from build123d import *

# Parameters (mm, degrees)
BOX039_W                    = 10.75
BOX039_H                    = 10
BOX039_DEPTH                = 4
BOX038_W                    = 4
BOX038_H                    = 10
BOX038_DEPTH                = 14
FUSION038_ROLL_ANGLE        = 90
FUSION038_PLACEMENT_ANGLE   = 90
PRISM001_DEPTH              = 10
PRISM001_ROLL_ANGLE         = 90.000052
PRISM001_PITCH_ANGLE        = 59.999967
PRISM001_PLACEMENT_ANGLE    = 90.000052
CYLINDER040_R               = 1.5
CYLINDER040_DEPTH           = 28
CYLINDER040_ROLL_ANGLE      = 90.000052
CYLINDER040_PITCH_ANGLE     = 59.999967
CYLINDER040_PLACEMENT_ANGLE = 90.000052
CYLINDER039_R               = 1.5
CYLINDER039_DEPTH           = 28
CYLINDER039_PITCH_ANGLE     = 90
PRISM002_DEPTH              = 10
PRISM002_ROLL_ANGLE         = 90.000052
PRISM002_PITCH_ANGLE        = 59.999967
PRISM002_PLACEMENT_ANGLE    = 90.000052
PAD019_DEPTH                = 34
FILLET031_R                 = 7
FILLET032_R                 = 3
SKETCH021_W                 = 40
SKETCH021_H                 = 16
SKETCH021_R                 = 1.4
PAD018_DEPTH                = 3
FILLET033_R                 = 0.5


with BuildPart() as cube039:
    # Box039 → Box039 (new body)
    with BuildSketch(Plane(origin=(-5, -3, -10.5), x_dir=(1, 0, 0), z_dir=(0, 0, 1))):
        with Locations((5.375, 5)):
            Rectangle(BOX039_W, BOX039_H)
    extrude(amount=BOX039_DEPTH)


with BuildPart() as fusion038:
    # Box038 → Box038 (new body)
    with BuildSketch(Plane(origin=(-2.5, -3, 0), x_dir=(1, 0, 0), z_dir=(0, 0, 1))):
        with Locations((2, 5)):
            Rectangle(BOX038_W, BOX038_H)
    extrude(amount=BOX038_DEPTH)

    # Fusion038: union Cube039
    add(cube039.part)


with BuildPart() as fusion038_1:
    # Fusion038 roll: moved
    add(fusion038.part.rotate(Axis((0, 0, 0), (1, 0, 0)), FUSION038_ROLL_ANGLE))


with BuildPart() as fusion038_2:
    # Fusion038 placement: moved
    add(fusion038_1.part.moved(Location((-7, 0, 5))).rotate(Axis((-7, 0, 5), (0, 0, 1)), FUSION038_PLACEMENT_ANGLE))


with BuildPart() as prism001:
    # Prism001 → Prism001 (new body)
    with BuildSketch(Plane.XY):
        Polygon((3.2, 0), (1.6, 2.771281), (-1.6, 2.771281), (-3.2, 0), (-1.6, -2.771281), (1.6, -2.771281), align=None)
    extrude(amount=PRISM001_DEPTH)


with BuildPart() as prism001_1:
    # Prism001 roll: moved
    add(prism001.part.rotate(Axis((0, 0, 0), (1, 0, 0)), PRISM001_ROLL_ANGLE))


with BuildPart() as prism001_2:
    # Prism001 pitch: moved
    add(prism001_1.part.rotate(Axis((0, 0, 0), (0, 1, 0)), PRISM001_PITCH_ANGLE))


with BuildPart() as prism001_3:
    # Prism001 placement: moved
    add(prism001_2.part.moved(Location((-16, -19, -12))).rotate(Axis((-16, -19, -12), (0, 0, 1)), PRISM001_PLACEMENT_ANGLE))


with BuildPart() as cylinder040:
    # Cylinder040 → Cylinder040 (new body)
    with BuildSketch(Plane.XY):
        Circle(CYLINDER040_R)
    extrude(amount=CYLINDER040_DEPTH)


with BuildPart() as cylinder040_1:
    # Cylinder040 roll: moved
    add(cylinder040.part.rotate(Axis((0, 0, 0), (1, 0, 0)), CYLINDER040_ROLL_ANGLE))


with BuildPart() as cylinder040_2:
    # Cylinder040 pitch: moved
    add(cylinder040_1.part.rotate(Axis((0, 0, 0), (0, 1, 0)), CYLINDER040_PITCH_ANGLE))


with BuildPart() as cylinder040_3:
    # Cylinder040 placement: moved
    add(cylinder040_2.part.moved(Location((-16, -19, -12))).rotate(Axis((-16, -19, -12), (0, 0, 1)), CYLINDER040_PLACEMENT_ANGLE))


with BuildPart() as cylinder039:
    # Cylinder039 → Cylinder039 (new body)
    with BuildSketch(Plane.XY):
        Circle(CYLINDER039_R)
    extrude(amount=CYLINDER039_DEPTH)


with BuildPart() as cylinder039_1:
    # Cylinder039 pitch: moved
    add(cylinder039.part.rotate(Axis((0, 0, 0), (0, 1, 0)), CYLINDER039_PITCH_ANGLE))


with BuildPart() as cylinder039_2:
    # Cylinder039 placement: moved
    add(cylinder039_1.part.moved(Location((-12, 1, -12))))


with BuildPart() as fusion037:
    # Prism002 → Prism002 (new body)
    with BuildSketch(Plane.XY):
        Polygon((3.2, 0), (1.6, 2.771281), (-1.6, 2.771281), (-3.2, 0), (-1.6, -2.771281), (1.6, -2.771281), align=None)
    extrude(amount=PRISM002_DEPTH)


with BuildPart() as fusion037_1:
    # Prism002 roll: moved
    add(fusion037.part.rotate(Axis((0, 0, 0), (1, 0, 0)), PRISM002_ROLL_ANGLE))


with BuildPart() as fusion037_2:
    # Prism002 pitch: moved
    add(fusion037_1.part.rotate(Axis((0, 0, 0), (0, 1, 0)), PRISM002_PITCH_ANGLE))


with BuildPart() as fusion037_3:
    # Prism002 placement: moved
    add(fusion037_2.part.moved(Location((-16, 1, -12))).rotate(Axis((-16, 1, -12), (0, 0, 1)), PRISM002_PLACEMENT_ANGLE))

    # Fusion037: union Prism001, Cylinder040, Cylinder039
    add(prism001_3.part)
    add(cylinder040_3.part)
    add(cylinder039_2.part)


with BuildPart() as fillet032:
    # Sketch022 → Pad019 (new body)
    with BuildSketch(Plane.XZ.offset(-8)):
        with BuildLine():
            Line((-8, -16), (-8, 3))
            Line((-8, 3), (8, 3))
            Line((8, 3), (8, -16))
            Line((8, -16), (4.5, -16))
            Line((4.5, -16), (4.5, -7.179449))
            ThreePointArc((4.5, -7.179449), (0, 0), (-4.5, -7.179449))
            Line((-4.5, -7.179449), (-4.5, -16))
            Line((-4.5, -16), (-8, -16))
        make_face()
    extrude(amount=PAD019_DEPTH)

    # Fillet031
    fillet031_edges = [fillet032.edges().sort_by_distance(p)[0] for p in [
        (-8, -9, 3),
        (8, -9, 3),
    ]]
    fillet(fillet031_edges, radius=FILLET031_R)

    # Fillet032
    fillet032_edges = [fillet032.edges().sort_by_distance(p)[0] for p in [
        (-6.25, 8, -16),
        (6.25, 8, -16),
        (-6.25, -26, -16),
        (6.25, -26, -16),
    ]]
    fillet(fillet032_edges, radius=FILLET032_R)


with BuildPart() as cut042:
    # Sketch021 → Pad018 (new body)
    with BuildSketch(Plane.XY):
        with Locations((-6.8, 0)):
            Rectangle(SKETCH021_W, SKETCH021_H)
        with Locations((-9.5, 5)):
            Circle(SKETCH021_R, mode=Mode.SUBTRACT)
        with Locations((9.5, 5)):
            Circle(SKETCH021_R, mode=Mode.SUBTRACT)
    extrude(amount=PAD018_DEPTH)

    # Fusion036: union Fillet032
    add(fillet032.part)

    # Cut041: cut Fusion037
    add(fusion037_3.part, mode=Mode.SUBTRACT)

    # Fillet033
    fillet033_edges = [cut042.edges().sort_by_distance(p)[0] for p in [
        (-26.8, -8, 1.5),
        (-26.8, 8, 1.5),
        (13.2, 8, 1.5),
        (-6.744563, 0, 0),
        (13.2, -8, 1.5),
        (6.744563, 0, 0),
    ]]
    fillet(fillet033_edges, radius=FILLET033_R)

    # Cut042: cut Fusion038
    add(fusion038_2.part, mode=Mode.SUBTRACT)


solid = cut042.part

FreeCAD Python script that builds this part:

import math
import FreeCAD as App
import Part
import Sketcher

V = App.Vector
Q = App.Units.Quantity


def edges_at(feature, points):
    """Names of the edges that pass closest to the given points."""
    edges = feature.Shape.Edges
    near = lambda p: min(range(len(edges)), key=lambda i: edges[i].distToShape(Part.Vertex(*p))[0])
    return sorted({f"Edge{near(p) + 1}" for p in points})

doc = App.newDocument("Part")
params = doc.addObject("Spreadsheet::Sheet", "Params")
for row, (alias, value) in enumerate([
    ("sketch1_height", "10 mm"),
    ("sketch1_width", "10.75 mm"),
    ("pad1_length", "4 mm"),
    ("sketch2_width", "4 mm"),
    ("sketch2_height", "10 mm"),
    ("pad2_length", "14 mm"),
    ("sketch3_width", "3.2 mm"),
    ("sketch3_length", "3.2 mm"),
    ("pad3_length", "10 mm"),
    ("sketch4_diameter", "3 mm"),
    ("pad4_length", "28 mm"),
    ("sketch5_diameter", "3 mm"),
    ("pad5_length", "28 mm"),
    ("sketch6_width", "3.2 mm"),
    ("sketch6_length", "3.2 mm"),
    ("pad6_length", "10 mm"),
    ("sketch7_radius", "5 mm"),
    ("sketch7_width", "16 mm"),
    ("sketch7_height", "19 mm"),
    ("sketch7_width2", "3.5 mm"),
    ("pad7_length", "34 mm"),
    ("fillet_radius", "7 mm"),
    ("fillet2_radius", "3 mm"),
    ("sketch8_diameter", "2.8 mm"),
    ("sketch8_width", "40 mm"),
    ("sketch8_height", "16 mm"),
    ("pad8_length", "3 mm"),
    ("fillet3_radius", "0.5 mm"),
], start=1):
    params.set(f"A{row}", alias)
    params.set(f"B{row}", "=" + value)
    params.setAlias(f"B{row}", alias)

body = doc.addObject("PartDesign::Body", "Body")

# Sketch on XY plane
sketch1 = body.newObject("Sketcher::SketchObject", "Sketch")
sketch1.AttachmentSupport = (doc.getObject("XY_Plane"), [""])
sketch1.MapMode = "FlatFace"
sketch1.AttachmentOffset = App.Placement(V(0, 0, -10.5), App.Rotation())
sketch1.addGeometry([
    Part.LineSegment(V(-5, 7, 0), V(-5, -3, 0)),
    Part.LineSegment(V(-5, -3, 0), V(5.75, -3, 0)),
    Part.LineSegment(V(5.75, -3, 0), V(5.75, 7, 0)),
    Part.LineSegment(V(5.75, 7, 0), V(-5, 7, 0)),
], False)
sketch1.addConstraint([
    Sketcher.Constraint("Coincident", 0, 2, 1, 1),
    Sketcher.Constraint("Coincident", 1, 2, 2, 1),
    Sketcher.Constraint("Coincident", 2, 2, 3, 1),
    Sketcher.Constraint("Coincident", 3, 2, 0, 1),
    Sketcher.Constraint("Vertical", 0),
    Sketcher.Constraint("Horizontal", 1),
    Sketcher.Constraint("Vertical", 2),
    Sketcher.Constraint("Horizontal", 3),
    Sketcher.Constraint("DistanceY", 0, 2, 0, 1, Q("10 mm")),
    Sketcher.Constraint("DistanceX", 0, 2, -1, 1, Q("5 mm")),
    Sketcher.Constraint("DistanceY", 0, 2, -1, 1, Q("3 mm")),
    Sketcher.Constraint("DistanceX", 1, 1, 1, 2, Q("10.75 mm")),
])
sketch1.setExpression("Constraints[8]", "Params.sketch1_height")
sketch1.setExpression("Constraints[11]", "Params.sketch1_width")
pad1 = body.newObject("PartDesign::Pad", "Pad")
pad1.Profile = sketch1
pad1.setExpression("Length", "Params.pad1_length")
body2 = doc.addObject("PartDesign::Body", "Body001")
body2.AllowCompound = True

# Sketch on XY plane
sketch2 = body2.newObject("Sketcher::SketchObject", "Sketch001")
sketch2.AttachmentSupport = (doc.getObject("XY_Plane001"), [""])
sketch2.MapMode = "FlatFace"
sketch2.addGeometry([
    Part.LineSegment(V(-2.5, 7, 0), V(-2.5, -3, 0)),
    Part.LineSegment(V(-2.5, -3, 0), V(1.5, -3, 0)),
    Part.LineSegment(V(1.5, -3, 0), V(1.5, 7, 0)),
    Part.LineSegment(V(1.5, 7, 0), V(-2.5, 7, 0)),
], False)
sketch2.addConstraint([
    Sketcher.Constraint("Coincident", 0, 2, 1, 1),
    Sketcher.Constraint("Coincident", 1, 2, 2, 1),
    Sketcher.Constraint("Coincident", 2, 2, 3, 1),
    Sketcher.Constraint("Coincident", 3, 2, 0, 1),
    Sketcher.Constraint("Vertical", 0),
    Sketcher.Constraint("Horizontal", 1),
    Sketcher.Constraint("Vertical", 2),
    Sketcher.Constraint("Horizontal", 3),
    Sketcher.Constraint("DistanceX", 1, 1, 1, 2, Q("4 mm")),
    Sketcher.Constraint("DistanceY", 0, 2, 0, 1, Q("10 mm")),
    Sketcher.Constraint("DistanceY", 0, 2, -1, 1, Q("3 mm")),
    Sketcher.Constraint("DistanceX", 0, 2, -1, 1, Q("2.5 mm")),
])
sketch2.setExpression("Constraints[8]", "Params.sketch2_width")
sketch2.setExpression("Constraints[9]", "Params.sketch2_height")
pad2 = body2.newObject("PartDesign::Pad", "Pad001")
pad2.Profile = sketch2
pad2.setExpression("Length", "Params.pad2_length")
doc.recompute()

boolean = body2.newObject("PartDesign::Boolean", "Boolean")
boolean.Type = "Fuse"
boolean.addObjects([body])
body3 = doc.addObject("PartDesign::Body", "Body002")
body3.AllowCompound = True
doc.recompute()

body2.Placement = App.Placement(V(0, 0, 0), App.Rotation(V(1, 0, 0), 90))
boolean2 = body3.newObject("PartDesign::Boolean", "Boolean001")
boolean2.Type = "Fuse"
boolean2.addObjects([body2])
body4 = doc.addObject("PartDesign::Body", "Body003")
body4.AllowCompound = True
doc.recompute()

body3.Placement = App.Placement(V(-7, 0, 5), App.Rotation(V(0, 0, 1), 90))
boolean3 = body4.newObject("PartDesign::Boolean", "Boolean002")
boolean3.Type = "Fuse"
boolean3.addObjects([body3])
body5 = doc.addObject("PartDesign::Body", "Body004")

# Sketch on XY plane
sketch3 = body5.newObject("Sketcher::SketchObject", "Sketch002")
sketch3.AttachmentSupport = (doc.getObject("XY_Plane004"), [""])
sketch3.MapMode = "FlatFace"
sketch3.addGeometry([
    Part.LineSegment(V(3.2, 0, 0), V(1.6, 2.771281, 0)),  # 0
    Part.LineSegment(V(1.6, 2.771281, 0), V(-1.6, 2.771281, 0)),  # 1
    Part.LineSegment(V(-1.6, 2.771281, 0), V(-3.2, 0, 0)),  # 2
    Part.LineSegment(V(-3.2, 0, 0), V(-1.6, -2.771281, 0)),  # 3
    Part.LineSegment(V(-1.6, -2.771281, 0), V(1.6, -2.771281, 0)),  # 4
    Part.LineSegment(V(1.6, -2.771281, 0), V(3.2, 0, 0)),  # 5
], False)
sketch3.addConstraint([
    Sketcher.Constraint("Coincident", 0, 2, 1, 1),
    Sketcher.Constraint("Coincident", 1, 2, 2, 1),
    Sketcher.Constraint("Coincident", 2, 2, 3, 1),
    Sketcher.Constraint("Coincident", 3, 2, 4, 1),
    Sketcher.Constraint("Coincident", 4, 2, 5, 1),
    Sketcher.Constraint("Coincident", 5, 2, 0, 1),
    Sketcher.Constraint("Horizontal", 1),
    Sketcher.Constraint("Horizontal", 4),
    Sketcher.Constraint("Symmetric", 0, 2, 3, 2, -1, 1),
    Sketcher.Constraint("Symmetric", 2, 2, 5, 2, -1, 1),
    Sketcher.Constraint("PointOnObject", 2, 2, -1),
    Sketcher.Constraint("Parallel", 2, 5),
    Sketcher.Constraint("Vertical", 1, 2, 3, 2),
    Sketcher.Constraint("Angle", 0, Q("120.000003 deg")),
    Sketcher.Constraint("DistanceX", 1, 2, 1, 1, Q("3.2 mm")),
    Sketcher.Constraint("Distance", 0, Q("3.2 mm")),
])
sketch3.setExpression("Constraints[14]", "Params.sketch3_width")
sketch3.setExpression("Constraints[15]", "Params.sketch3_length")
pad3 = body5.newObject("PartDesign::Pad", "Pad002")
pad3.Profile = sketch3
pad3.setExpression("Length", "Params.pad3_length")
body6 = doc.addObject("PartDesign::Body", "Body005")
doc.recompute()

body5.Placement = App.Placement(V(0, 0, 0), App.Rotation(V(1, 0, 0), 90.000052))
boolean4 = body6.newObject("PartDesign::Boolean", "Boolean003")
boolean4.Type = "Fuse"
boolean4.addObjects([body5])
body7 = doc.addObject("PartDesign::Body", "Body006")
doc.recompute()

body6.Placement = App.Placement(V(0, 0, 0), App.Rotation(V(0, 1, 0), 59.999967))
boolean5 = body7.newObject("PartDesign::Boolean", "Boolean004")
boolean5.Type = "Fuse"
boolean5.addObjects([body6])
body8 = doc.addObject("PartDesign::Body", "Body007")
doc.recompute()

body7.Placement = App.Placement(V(-16, -19, -12), App.Rotation(V(0, 0, 1), 90.000052))
boolean6 = body8.newObject("PartDesign::Boolean", "Boolean005")
boolean6.Type = "Fuse"
boolean6.addObjects([body7])
body9 = doc.addObject("PartDesign::Body", "Body008")

# Sketch on XY plane
sketch4 = body9.newObject("Sketcher::SketchObject", "Sketch003")
sketch4.AttachmentSupport = (doc.getObject("XY_Plane008"), [""])
sketch4.MapMode = "FlatFace"
sketch4.addGeometry(Part.Circle(V(0, 0, 0), V(0, 0, 1), 1.5), False)
sketch4.addConstraint([
    Sketcher.Constraint("Coincident", 0, 3, -1, 1),
    Sketcher.Constraint("Diameter", 0, Q("3 mm")),
])
sketch4.setExpression("Constraints[1]", "Params.sketch4_diameter")
pad4 = body9.newObject("PartDesign::Pad", "Pad003")
pad4.Profile = sketch4
pad4.setExpression("Length", "Params.pad4_length")
body10 = doc.addObject("PartDesign::Body", "Body009")
doc.recompute()

body9.Placement = App.Placement(V(0, 0, 0), App.Rotation(V(1, 0, 0), 90.000052))
boolean7 = body10.newObject("PartDesign::Boolean", "Boolean006")
boolean7.Type = "Fuse"
boolean7.addObjects([body9])
body11 = doc.addObject("PartDesign::Body", "Body010")
doc.recompute()

body10.Placement = App.Placement(V(0, 0, 0), App.Rotation(V(0, 1, 0), 59.999967))
boolean8 = body11.newObject("PartDesign::Boolean", "Boolean007")
boolean8.Type = "Fuse"
boolean8.addObjects([body10])
body12 = doc.addObject("PartDesign::Body", "Body011")
doc.recompute()

body11.Placement = App.Placement(V(-16, -19, -12), App.Rotation(V(0, 0, 1), 90.000052))
boolean9 = body12.newObject("PartDesign::Boolean", "Boolean008")
boolean9.Type = "Fuse"
boolean9.addObjects([body11])
body13 = doc.addObject("PartDesign::Body", "Body012")

# Sketch on XY plane
sketch5 = body13.newObject("Sketcher::SketchObject", "Sketch004")
sketch5.AttachmentSupport = (doc.getObject("XY_Plane012"), [""])
sketch5.MapMode = "FlatFace"
sketch5.addGeometry(Part.Circle(V(0, 0, 0), V(0, 0, 1), 1.5), False)
sketch5.addConstraint([
    Sketcher.Constraint("Coincident", 0, 3, -1, 1),
    Sketcher.Constraint("Diameter", 0, Q("3 mm")),
])
sketch5.setExpression("Constraints[1]", "Params.sketch5_diameter")
pad5 = body13.newObject("PartDesign::Pad", "Pad004")
pad5.Profile = sketch5
pad5.setExpression("Length", "Params.pad5_length")
body14 = doc.addObject("PartDesign::Body", "Body013")
doc.recompute()

body13.Placement = App.Placement(V(0, 0, 0), App.Rotation(V(0, 1, 0), 90))
boolean10 = body14.newObject("PartDesign::Boolean", "Boolean009")
boolean10.Type = "Fuse"
boolean10.addObjects([body13])
body15 = doc.addObject("PartDesign::Body", "Body014")
doc.recompute()

body14.Placement = App.Placement(V(-12, 1, -12), App.Rotation(V(0, 0, 1), 0))
boolean11 = body15.newObject("PartDesign::Boolean", "Boolean010")
boolean11.Type = "Fuse"
boolean11.addObjects([body14])
body16 = doc.addObject("PartDesign::Body", "Body015")

# Sketch on XY plane
sketch6 = body16.newObject("Sketcher::SketchObject", "Sketch005")
sketch6.AttachmentSupport = (doc.getObject("XY_Plane015"), [""])
sketch6.MapMode = "FlatFace"
sketch6.addGeometry([
    Part.LineSegment(V(3.2, 0, 0), V(1.6, 2.771281, 0)),  # 0
    Part.LineSegment(V(1.6, 2.771281, 0), V(-1.6, 2.771281, 0)),  # 1
    Part.LineSegment(V(-1.6, 2.771281, 0), V(-3.2, 0, 0)),  # 2
    Part.LineSegment(V(-3.2, 0, 0), V(-1.6, -2.771281, 0)),  # 3
    Part.LineSegment(V(-1.6, -2.771281, 0), V(1.6, -2.771281, 0)),  # 4
    Part.LineSegment(V(1.6, -2.771281, 0), V(3.2, 0, 0)),  # 5
], False)
sketch6.addConstraint([
    Sketcher.Constraint("Coincident", 0, 2, 1, 1),
    Sketcher.Constraint("Coincident", 1, 2, 2, 1),
    Sketcher.Constraint("Coincident", 2, 2, 3, 1),
    Sketcher.Constraint("Coincident", 3, 2, 4, 1),
    Sketcher.Constraint("Coincident", 4, 2, 5, 1),
    Sketcher.Constraint("Coincident", 5, 2, 0, 1),
    Sketcher.Constraint("Horizontal", 1),
    Sketcher.Constraint("Horizontal", 4),
    Sketcher.Constraint("Symmetric", 0, 2, 3, 2, -1, 1),
    Sketcher.Constraint("Symmetric", 2, 2, 5, 2, -1, 1),
    Sketcher.Constraint("PointOnObject", 2, 2, -1),
    Sketcher.Constraint("Parallel", 2, 5),
    Sketcher.Constraint("Vertical", 1, 2, 3, 2),
    Sketcher.Constraint("Angle", 0, Q("120.000003 deg")),
    Sketcher.Constraint("DistanceX", 1, 2, 1, 1, Q("3.2 mm")),
    Sketcher.Constraint("Distance", 0, Q("3.2 mm")),
])
sketch6.setExpression("Constraints[14]", "Params.sketch6_width")
sketch6.setExpression("Constraints[15]", "Params.sketch6_length")
pad6 = body16.newObject("PartDesign::Pad", "Pad005")
pad6.Profile = sketch6
pad6.setExpression("Length", "Params.pad6_length")
body17 = doc.addObject("PartDesign::Body", "Body016")
doc.recompute()

body16.Placement = App.Placement(V(0, 0, 0), App.Rotation(V(1, 0, 0), 90.000052))
boolean12 = body17.newObject("PartDesign::Boolean", "Boolean011")
boolean12.Type = "Fuse"
boolean12.addObjects([body16])
body18 = doc.addObject("PartDesign::Body", "Body017")
doc.recompute()

body17.Placement = App.Placement(V(0, 0, 0), App.Rotation(V(0, 1, 0), 59.999967))
boolean13 = body18.newObject("PartDesign::Boolean", "Boolean012")
boolean13.Type = "Fuse"
boolean13.addObjects([body17])
body19 = doc.addObject("PartDesign::Body", "Body018")
body19.AllowCompound = True
doc.recompute()

body18.Placement = App.Placement(V(-16, 1, -12), App.Rotation(V(0, 0, 1), 90.000052))
boolean14 = body19.newObject("PartDesign::Boolean", "Boolean013")
boolean14.Type = "Fuse"
boolean14.addObjects([body18])
doc.recompute()

boolean15 = body19.newObject("PartDesign::Boolean", "Boolean014")
boolean15.Type = "Fuse"
boolean15.addObjects([body8])
doc.recompute()

boolean16 = body19.newObject("PartDesign::Boolean", "Boolean015")
boolean16.Type = "Fuse"
boolean16.addObjects([body12])
doc.recompute()

boolean17 = body19.newObject("PartDesign::Boolean", "Boolean016")
boolean17.Type = "Fuse"
boolean17.addObjects([body15])
body20 = doc.addObject("PartDesign::Body", "Body019")

# Sketch on XZ plane
sketch7 = body20.newObject("Sketcher::SketchObject", "Sketch006")
sketch7.AttachmentSupport = (doc.getObject("XZ_Plane019"), [""])
sketch7.MapMode = "FlatFace"
sketch7.AttachmentOffset = App.Placement(V(0, 0, -8), App.Rotation())
sketch7.addGeometry([
    Part.LineSegment(V(-8, 3, 0), V(-8, -16, 0)),  # 0
    Part.LineSegment(V(-8, -16, 0), V(-4.5, -16, 0)),  # 1
    Part.LineSegment(V(-4.5, -16, 0), V(-4.5, -7.179449, 0)),  # 2
    Part.ArcOfCircle(Part.Circle(V(0, -5, 0), V(0, 0, 1), 5), math.radians(-25.841929), math.radians(205.841929)),  # 3
    Part.LineSegment(V(4.5, -7.179449, 0), V(4.5, -16, 0)),  # 4
    Part.LineSegment(V(4.5, -16, 0), V(8, -16, 0)),  # 5
    Part.LineSegment(V(8, -16, 0), V(8, 3, 0)),  # 6
    Part.LineSegment(V(8, 3, 0), V(-8, 3, 0)),  # 7
], False)
sketch7.addConstraint([
    Sketcher.Constraint("Coincident", 0, 2, 1, 1),
    Sketcher.Constraint("Coincident", 1, 2, 2, 1),
    Sketcher.Constraint("Coincident", 2, 2, 3, 2),
    Sketcher.Constraint("Coincident", 3, 1, 4, 1),
    Sketcher.Constraint("Coincident", 4, 2, 5, 1),
    Sketcher.Constraint("Coincident", 5, 2, 6, 1),
    Sketcher.Constraint("Coincident", 6, 2, 7, 1),
    Sketcher.Constraint("Coincident", 7, 2, 0, 1),
    Sketcher.Constraint("Vertical", 0),
    Sketcher.Constraint("Horizontal", 1),
    Sketcher.Constraint("Vertical", 2),
    Sketcher.Constraint("Vertical", 4),
    Sketcher.Constraint("Horizontal", 5),
    Sketcher.Constraint("Vertical", 6),
    Sketcher.Constraint("Horizontal", 7),
    Sketcher.Constraint("Symmetric", 2, 2, 3, 1, -2),
    Sketcher.Constraint("Symmetric", 0, 2, 5, 2, -2),
    Sketcher.Constraint("Radius", 3, Q("5 mm")),
    Sketcher.Constraint("DistanceX", 7, 2, 7, 1, Q("16 mm")),
    Sketcher.Constraint("DistanceY", 0, 2, 0, 1, Q("19 mm")),
    Sketcher.Constraint("DistanceX", 1, 1, 1, 2, Q("3.5 mm")),
    Sketcher.Constraint("DistanceY", 3, 3, -1, 1, Q("5 mm")),
    Sketcher.Constraint("DistanceY", 0, 2, -1, 1, Q("16 mm")),
])
sketch7.setExpression("Constraints[17]", "Params.sketch7_radius")
sketch7.setExpression("Constraints[18]", "Params.sketch7_width")
sketch7.setExpression("Constraints[19]", "Params.sketch7_height")
sketch7.setExpression("Constraints[20]", "Params.sketch7_width2")
pad7 = body20.newObject("PartDesign::Pad", "Pad006")
pad7.Profile = sketch7
pad7.setExpression("Length", "Params.pad7_length")
doc.recompute()

fillet = body20.newObject("PartDesign::Fillet", "Fillet")
fillet.Base = (pad7, edges_at(pad7, [(-8, -9, 3), (8, -9, 3)]))
fillet.setExpression("Radius", "Params.fillet_radius")
doc.recompute()

fillet2 = body20.newObject("PartDesign::Fillet", "Fillet001")
fillet2.Base = (fillet, edges_at(fillet, [
    (-6.25, 8, -16),
    (6.25, 8, -16),
    (-6.25, -26, -16),
    (6.25, -26, -16),
]))
fillet2.setExpression("Radius", "Params.fillet2_radius")
body21 = doc.addObject("PartDesign::Body", "Body020")

# Sketch on XY plane
sketch8 = body21.newObject("Sketcher::SketchObject", "Sketch007")
sketch8.AttachmentSupport = (doc.getObject("XY_Plane020"), [""])
sketch8.MapMode = "FlatFace"
sketch8.addGeometry([
    Part.LineSegment(V(-26.8, 8, 0), V(-26.8, -8, 0)),  # 0
    Part.LineSegment(V(-26.8, -8, 0), V(13.2, -8, 0)),  # 1
    Part.LineSegment(V(13.2, -8, 0), V(13.2, 8, 0)),  # 2
    Part.LineSegment(V(13.2, 8, 0), V(-26.8, 8, 0)),  # 3
    Part.Circle(V(-9.5, 5, 0), V(0, 0, 1), 1.4),  # 4
    Part.Circle(V(9.5, 5, 0), V(0, 0, 1), 1.4),  # 5
], False)
sketch8.addConstraint([
    Sketcher.Constraint("Coincident", 0, 2, 1, 1),
    Sketcher.Constraint("Coincident", 1, 2, 2, 1),
    Sketcher.Constraint("Coincident", 2, 2, 3, 1),
    Sketcher.Constraint("Coincident", 3, 2, 0, 1),
    Sketcher.Constraint("Vertical", 0),
    Sketcher.Constraint("Horizontal", 1),
    Sketcher.Constraint("Vertical", 2),
    Sketcher.Constraint("Horizontal", 3),
    Sketcher.Constraint("Equal", 4, 5),
    Sketcher.Constraint("Symmetric", 4, 3, 5, 3, -2),
    Sketcher.Constraint("Diameter", 4, Q("2.8 mm")),
    Sketcher.Constraint("DistanceX", 1, 1, 1, 2, Q("40 mm")),
    Sketcher.Constraint("DistanceY", 0, 2, 0, 1, Q("16 mm")),
    Sketcher.Constraint("DistanceY", -1, 1, 4, 3, Q("5 mm")),
    Sketcher.Constraint("DistanceY", 0, 2, -1, 1, Q("8 mm")),
    Sketcher.Constraint("DistanceX", 4, 3, 5, 3, Q("19 mm")),
    Sketcher.Constraint("DistanceX", 0, 2, -1, 1, Q("26.8 mm")),
])
sketch8.setExpression("Constraints[10]", "Params.sketch8_diameter")
sketch8.setExpression("Constraints[11]", "Params.sketch8_width")
sketch8.setExpression("Constraints[12]", "Params.sketch8_height")
pad8 = body21.newObject("PartDesign::Pad", "Pad007")
pad8.Profile = sketch8
pad8.setExpression("Length", "Params.pad8_length")
doc.recompute()

boolean18 = body21.newObject("PartDesign::Boolean", "Boolean017")
boolean18.Type = "Fuse"
boolean18.addObjects([body20])
doc.recompute()

boolean19 = body21.newObject("PartDesign::Boolean", "Boolean018")
boolean19.Type = "Cut"
boolean19.addObjects([body19])
doc.recompute()

fillet3 = body21.newObject("PartDesign::Fillet", "Fillet002")
fillet3.Base = (boolean19, edges_at(boolean19, [
    (-26.8, -8, 1.5),
    (-26.8, 8, 1.5),
    (13.2, 8, 1.5),
    (-6.745, 0, 0),
    (13.2, -8, 1.5),
    (6.745, 0, 0),
]))
fillet3.setExpression("Radius", "Params.fillet3_radius")
doc.recompute()

boolean20 = body21.newObject("PartDesign::Boolean", "Boolean019")
boolean20.Type = "Cut"
boolean20.addObjects([body4])

doc.recompute()
